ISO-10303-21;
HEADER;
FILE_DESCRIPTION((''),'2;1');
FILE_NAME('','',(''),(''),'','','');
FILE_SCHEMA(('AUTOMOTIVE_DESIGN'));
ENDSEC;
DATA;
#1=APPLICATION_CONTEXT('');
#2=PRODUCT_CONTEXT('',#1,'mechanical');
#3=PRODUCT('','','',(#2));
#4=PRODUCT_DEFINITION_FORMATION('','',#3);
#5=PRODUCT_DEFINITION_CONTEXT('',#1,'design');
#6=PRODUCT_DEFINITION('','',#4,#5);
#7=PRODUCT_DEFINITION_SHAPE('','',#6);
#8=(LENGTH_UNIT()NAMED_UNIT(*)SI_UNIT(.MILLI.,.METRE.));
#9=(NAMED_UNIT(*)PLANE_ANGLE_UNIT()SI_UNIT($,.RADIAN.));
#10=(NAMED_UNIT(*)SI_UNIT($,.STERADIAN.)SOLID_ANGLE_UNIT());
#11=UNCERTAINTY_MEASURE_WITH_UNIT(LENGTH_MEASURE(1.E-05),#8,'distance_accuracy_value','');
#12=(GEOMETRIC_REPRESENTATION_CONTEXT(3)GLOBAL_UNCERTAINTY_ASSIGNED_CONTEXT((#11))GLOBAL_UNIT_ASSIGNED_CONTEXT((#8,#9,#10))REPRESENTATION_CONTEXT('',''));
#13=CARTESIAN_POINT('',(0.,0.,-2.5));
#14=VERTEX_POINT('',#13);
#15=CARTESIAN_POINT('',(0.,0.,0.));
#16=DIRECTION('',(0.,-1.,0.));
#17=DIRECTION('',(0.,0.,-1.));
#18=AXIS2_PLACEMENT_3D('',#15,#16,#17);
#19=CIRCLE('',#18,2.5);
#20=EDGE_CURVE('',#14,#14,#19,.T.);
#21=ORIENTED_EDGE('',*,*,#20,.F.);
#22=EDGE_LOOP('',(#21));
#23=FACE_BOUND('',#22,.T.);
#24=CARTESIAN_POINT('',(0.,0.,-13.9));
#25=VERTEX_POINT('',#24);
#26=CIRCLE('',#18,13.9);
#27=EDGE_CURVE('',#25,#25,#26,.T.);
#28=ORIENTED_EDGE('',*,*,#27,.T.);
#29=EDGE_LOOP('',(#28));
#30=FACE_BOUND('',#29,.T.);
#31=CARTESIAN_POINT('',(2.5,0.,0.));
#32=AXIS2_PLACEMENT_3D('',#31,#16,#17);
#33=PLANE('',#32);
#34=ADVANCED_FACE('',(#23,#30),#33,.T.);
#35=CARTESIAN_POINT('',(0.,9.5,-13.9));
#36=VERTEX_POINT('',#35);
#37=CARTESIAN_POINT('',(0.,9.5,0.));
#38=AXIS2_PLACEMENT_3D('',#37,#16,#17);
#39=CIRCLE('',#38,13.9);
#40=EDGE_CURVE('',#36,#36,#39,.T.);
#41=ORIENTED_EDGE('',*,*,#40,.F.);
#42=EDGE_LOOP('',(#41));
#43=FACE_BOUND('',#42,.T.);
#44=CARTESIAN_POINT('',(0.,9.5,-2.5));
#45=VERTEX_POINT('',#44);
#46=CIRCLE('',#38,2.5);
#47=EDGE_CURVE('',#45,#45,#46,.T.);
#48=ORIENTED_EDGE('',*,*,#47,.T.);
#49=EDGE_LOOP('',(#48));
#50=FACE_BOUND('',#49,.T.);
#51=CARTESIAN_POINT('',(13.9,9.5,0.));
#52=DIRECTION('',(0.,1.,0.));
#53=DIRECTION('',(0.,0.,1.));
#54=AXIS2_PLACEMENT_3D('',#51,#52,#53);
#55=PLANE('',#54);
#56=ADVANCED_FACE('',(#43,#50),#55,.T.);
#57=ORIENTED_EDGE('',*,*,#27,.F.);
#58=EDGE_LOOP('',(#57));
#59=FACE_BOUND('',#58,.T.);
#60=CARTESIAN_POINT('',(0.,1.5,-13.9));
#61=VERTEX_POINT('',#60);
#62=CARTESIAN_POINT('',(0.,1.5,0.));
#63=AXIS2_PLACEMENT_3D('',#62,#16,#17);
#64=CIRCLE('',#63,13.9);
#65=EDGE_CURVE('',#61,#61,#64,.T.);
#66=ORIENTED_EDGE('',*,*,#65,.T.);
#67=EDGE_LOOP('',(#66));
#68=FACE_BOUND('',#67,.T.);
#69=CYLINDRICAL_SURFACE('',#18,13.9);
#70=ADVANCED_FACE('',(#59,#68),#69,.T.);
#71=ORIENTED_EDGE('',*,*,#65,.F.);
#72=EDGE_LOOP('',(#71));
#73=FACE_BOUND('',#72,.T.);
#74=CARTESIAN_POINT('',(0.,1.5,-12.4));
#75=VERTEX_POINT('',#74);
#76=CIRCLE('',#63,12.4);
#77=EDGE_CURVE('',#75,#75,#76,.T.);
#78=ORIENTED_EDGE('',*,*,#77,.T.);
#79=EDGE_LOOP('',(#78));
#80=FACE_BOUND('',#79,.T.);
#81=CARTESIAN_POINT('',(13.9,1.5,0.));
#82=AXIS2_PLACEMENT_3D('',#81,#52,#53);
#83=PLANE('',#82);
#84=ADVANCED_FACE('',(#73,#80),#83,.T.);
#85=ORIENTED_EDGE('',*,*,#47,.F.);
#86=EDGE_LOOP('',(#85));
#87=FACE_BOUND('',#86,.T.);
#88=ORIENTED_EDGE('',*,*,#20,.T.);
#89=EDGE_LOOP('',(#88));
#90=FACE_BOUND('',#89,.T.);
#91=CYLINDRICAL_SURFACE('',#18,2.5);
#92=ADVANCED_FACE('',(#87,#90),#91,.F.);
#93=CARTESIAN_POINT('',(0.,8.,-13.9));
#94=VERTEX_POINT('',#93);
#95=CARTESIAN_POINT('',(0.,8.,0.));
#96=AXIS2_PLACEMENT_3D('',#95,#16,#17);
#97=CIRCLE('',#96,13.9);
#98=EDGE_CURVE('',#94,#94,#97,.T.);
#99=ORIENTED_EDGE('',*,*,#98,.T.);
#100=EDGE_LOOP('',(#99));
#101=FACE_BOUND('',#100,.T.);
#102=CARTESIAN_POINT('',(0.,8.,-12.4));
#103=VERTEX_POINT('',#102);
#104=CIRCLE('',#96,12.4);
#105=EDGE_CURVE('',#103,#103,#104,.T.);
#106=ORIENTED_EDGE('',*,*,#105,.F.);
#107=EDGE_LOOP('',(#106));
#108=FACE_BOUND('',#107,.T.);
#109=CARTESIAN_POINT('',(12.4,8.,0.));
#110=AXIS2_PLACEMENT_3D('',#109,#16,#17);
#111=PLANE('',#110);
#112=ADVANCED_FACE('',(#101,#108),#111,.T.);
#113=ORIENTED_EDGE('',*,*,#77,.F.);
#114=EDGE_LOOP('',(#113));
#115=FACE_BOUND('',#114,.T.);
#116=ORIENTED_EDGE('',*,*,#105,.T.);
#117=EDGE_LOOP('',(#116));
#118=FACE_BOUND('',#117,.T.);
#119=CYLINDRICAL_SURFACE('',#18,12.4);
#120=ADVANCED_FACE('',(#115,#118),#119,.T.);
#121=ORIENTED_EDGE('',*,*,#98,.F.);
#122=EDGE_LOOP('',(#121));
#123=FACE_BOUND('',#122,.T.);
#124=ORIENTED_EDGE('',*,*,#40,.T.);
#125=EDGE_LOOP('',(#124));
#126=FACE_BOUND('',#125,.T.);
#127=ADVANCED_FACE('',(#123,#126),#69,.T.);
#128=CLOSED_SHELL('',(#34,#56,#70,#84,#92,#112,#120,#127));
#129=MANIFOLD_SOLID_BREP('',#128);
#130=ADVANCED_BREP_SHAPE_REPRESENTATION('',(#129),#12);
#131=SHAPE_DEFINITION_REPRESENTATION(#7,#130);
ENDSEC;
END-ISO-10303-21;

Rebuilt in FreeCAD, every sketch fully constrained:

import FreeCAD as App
import Part
import Sketcher


def add_polygon(sketch, points):
    """Adds a closed chain of lines whose ends are joined by coincident constraints."""
    first, n = sketch.GeometryCount, len(points)
    for a, b in zip(points, points[1:] + points[:1]):
        sketch.addGeometry(Part.LineSegment(App.Vector(*a, 0), App.Vector(*b, 0)), False)
    for i in range(n):
        sketch.addConstraint(Sketcher.Constraint("Coincident", first + i, 2, first + (i + 1) % n, 1))

doc = App.newDocument("Part")
body = doc.addObject("PartDesign::Body", "Body")

sketch1 = body.newObject("Sketcher::SketchObject", "Sketch")
sketch1.AttachmentSupport = (doc.getObject("XY_Plane"), [""])
sketch1.MapMode = "FlatFace"
add_polygon(sketch1, [(2.5, 0), (13.9, 0), (13.9, 1.5), (12.4, 1.5), (12.4, 8), (13.9, 8), (13.9, 9.5), (2.5, 9.5)])
sketch1.addConstraint([
    Sketcher.Constraint("Horizontal", 0),
    Sketcher.Constraint("Vertical", 1),
    Sketcher.Constraint("Horizontal", 2),
    Sketcher.Constraint("Vertical", 3),
    Sketcher.Constraint("Horizontal", 4),
    Sketcher.Constraint("Vertical", 5),
    Sketcher.Constraint("Horizontal", 6),
    Sketcher.Constraint("Vertical", 7),
    Sketcher.Constraint("PointOnObject", 0, 2, -1),
    Sketcher.Constraint("Vertical", 1, 2, 4, 2),
    Sketcher.Constraint("Equal", 4, 1),
    Sketcher.Constraint("Equal", 1, 5),
    Sketcher.Constraint("DistanceX", 0, 1, 0, 2, 11.4),
    Sketcher.Constraint("DistanceX", 2, 2, 2, 1, 1.5),
    Sketcher.Constraint("DistanceY", 3, 1, 3, 2, 6.5),
    Sketcher.Constraint("DistanceX", -1, 1, 0, 2, 13.9),
])
revolution = body.newObject("PartDesign::Revolution", "Revolution")
revolution.Profile = sketch1
revolution.ReferenceAxis = (sketch1, ["V_Axis"])
revolution.Angle = 360

doc.recompute()
